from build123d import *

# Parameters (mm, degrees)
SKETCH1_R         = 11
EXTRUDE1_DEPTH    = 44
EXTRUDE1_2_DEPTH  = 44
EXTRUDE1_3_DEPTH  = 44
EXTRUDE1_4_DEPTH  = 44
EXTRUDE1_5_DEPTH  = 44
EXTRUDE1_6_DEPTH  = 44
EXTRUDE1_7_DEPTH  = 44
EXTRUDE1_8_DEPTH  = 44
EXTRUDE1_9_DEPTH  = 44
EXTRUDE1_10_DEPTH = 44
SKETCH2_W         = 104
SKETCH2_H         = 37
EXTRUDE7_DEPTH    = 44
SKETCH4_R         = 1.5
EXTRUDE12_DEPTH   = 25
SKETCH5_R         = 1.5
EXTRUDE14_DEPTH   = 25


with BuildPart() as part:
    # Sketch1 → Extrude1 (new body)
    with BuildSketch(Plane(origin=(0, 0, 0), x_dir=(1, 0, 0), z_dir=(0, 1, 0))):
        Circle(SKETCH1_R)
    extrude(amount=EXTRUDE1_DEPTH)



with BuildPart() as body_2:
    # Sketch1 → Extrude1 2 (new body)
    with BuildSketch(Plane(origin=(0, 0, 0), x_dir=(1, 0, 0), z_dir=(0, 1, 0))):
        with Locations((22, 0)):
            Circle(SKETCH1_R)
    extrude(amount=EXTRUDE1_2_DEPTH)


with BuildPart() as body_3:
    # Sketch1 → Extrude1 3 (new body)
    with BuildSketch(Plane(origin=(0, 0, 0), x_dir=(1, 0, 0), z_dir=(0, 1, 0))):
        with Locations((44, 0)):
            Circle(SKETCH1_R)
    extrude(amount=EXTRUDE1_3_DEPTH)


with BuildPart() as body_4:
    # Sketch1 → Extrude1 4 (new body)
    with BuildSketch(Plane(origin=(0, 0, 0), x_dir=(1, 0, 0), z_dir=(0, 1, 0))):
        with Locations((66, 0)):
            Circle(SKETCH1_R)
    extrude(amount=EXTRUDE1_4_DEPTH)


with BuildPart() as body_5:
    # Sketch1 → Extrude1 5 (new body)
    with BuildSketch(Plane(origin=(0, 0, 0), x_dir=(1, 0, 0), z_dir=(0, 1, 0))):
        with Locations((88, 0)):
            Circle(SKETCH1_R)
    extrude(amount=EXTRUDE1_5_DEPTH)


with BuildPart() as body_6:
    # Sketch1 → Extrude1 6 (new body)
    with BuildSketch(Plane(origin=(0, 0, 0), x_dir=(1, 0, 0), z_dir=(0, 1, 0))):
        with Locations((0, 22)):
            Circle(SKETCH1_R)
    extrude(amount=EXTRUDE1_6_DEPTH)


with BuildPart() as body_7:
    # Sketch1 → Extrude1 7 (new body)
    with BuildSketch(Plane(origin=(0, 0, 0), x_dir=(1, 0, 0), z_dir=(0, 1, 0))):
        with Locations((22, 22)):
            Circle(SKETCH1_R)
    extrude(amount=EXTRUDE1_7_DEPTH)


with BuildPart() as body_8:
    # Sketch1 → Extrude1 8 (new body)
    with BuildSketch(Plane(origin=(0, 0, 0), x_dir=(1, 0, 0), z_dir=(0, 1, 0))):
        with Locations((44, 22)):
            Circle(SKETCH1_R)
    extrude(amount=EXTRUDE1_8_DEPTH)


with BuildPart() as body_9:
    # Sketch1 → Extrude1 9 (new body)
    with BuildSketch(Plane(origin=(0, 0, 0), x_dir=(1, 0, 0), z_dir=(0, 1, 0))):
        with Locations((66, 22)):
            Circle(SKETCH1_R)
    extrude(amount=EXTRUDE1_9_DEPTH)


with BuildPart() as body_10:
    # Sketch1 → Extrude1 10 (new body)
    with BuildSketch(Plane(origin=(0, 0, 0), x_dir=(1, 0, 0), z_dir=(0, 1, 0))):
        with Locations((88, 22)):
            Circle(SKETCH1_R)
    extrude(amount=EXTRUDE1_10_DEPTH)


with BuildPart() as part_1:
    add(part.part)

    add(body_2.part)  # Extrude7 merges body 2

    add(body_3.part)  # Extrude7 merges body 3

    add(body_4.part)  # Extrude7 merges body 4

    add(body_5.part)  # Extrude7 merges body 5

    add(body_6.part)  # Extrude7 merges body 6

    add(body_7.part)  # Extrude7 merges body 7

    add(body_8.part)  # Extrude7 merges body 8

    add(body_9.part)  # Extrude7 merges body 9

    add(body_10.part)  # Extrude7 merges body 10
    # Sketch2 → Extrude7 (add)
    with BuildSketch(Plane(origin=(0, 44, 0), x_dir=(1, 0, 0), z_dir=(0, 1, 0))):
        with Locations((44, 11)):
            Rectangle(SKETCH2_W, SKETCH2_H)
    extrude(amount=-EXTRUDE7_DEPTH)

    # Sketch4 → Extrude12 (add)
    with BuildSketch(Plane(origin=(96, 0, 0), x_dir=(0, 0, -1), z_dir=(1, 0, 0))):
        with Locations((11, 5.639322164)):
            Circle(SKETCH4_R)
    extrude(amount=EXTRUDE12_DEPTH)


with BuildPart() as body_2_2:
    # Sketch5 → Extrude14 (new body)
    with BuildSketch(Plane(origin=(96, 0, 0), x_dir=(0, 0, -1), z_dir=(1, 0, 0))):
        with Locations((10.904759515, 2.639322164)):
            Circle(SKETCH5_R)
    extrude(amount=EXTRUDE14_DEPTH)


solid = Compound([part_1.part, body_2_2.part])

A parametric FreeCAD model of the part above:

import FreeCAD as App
import Part
import Sketcher

V = App.Vector

doc = App.newDocument("Part")
params = doc.addObject("Spreadsheet::Sheet", "Params")
for row, (alias, value) in enumerate([
    ("sketch1_diameter", "22 mm"),
    ("pad1_length", "44 mm"),
    ("sketch2_diameter", "22 mm"),
    ("pad2_length", "44 mm"),
    ("sketch3_diameter", "22 mm"),
    ("pad3_length", "44 mm"),
    ("sketch4_diameter", "22 mm"),
    ("pad4_length", "44 mm"),
    ("sketch5_diameter", "22 mm"),
    ("pad5_length", "44 mm"),
    ("sketch6_diameter", "22 mm"),
    ("pad6_length", "44 mm"),
    ("sketch7_diameter", "22 mm"),
    ("pad7_length", "44 mm"),
    ("sketch8_diameter", "22 mm"),
    ("pad8_length", "44 mm"),
    ("sketch9_diameter", "22 mm"),
    ("pad9_length", "44 mm"),
    ("sketch10_diameter", "22 mm"),
    ("pad10_length", "44 mm"),
    ("sketch11_width", "104 mm"),
    ("sketch11_height", "37 mm"),
    ("pad11_length", "44 mm"),
    ("sketch12_diameter", "3 mm"),
    ("pad12_length", "25 mm"),
    ("sketch13_diameter", "3 mm"),
    ("pad13_length", "25 mm"),
], start=1):
    params.set(f"A{row}", alias)
    params.set(f"B{row}", "=" + value)
    params.setAlias(f"B{row}", alias)

body = doc.addObject("PartDesign::Body", "Body")

# Sketch on XZ plane
sketch1 = body.newObject("Sketcher::SketchObject", "Sketch")
sketch1.AttachmentSupport = (doc.getObject("XZ_Plane"), [""])
sketch1.MapMode = "FlatFace"
sketch1.addGeometry(Part.Circle(V(0, 0, 0), V(0, 0, 1), 11), False)
sketch1.addConstraint(Sketcher.Constraint("Coincident", 0, 3, -1, 1))
sketch1.addConstraint(Sketcher.Constraint("Diameter", 0, 22.0))
sketch1.setExpression("Constraints[1]", "Params.sketch1_diameter")
pad1 = body.newObject("PartDesign::Pad", "Pad")
pad1.Profile = sketch1
pad1.setExpression("Length", "Params.pad1_length")
pad1.Reversed = True
body2 = doc.addObject("PartDesign::Body", "Body001")

# Sketch on XZ plane
sketch2 = body2.newObject("Sketcher::SketchObject", "Sketch001")
sketch2.AttachmentSupport = (doc.getObject("XZ_Plane001"), [""])
sketch2.MapMode = "FlatFace"
sketch2.addGeometry(Part.Circle(V(22, 0, 0), V(0, 0, 1), 11), False)
sketch2.addConstraint(Sketcher.Constraint("PointOnObject", 0, 3, -1))
sketch2.addConstraint(Sketcher.Constraint("Diameter", 0, 22.0))
sketch2.addConstraint(Sketcher.Constraint("DistanceX", -1, 1, 0, 3, 22.0))
sketch2.setExpression("Constraints[1]", "Params.sketch2_diameter")
pad2 = body2.newObject("PartDesign::Pad", "Pad001")
pad2.Profile = sketch2
pad2.setExpression("Length", "Params.pad2_length")
pad2.Reversed = True
body3 = doc.addObject("PartDesign::Body", "Body002")

# Sketch on XZ plane
sketch3 = body3.newObject("Sketcher::SketchObject", "Sketch002")
sketch3.AttachmentSupport = (doc.getObject("XZ_Plane002"), [""])
sketch3.MapMode = "FlatFace"
sketch3.addGeometry(Part.Circle(V(44, 0, 0), V(0, 0, 1), 11), False)
sketch3.addConstraint(Sketcher.Constraint("PointOnObject", 0, 3, -1))
sketch3.addConstraint(Sketcher.Constraint("Diameter", 0, 22.0))
sketch3.addConstraint(Sketcher.Constraint("DistanceX", -1, 1, 0, 3, 44.0))
sketch3.setExpression("Constraints[1]", "Params.sketch3_diameter")
pad3 = body3.newObject("PartDesign::Pad", "Pad002")
pad3.Profile = sketch3
pad3.setExpression("Length", "Params.pad3_length")
pad3.Reversed = True
body4 = doc.addObject("PartDesign::Body", "Body003")

# Sketch on XZ plane
sketch4 = body4.newObject("Sketcher::SketchObject", "Sketch003")
sketch4.AttachmentSupport = (doc.getObject("XZ_Plane003"), [""])
sketch4.MapMode = "FlatFace"
sketch4.addGeometry(Part.Circle(V(66, 0, 0), V(0, 0, 1), 11), False)
sketch4.addConstraint(Sketcher.Constraint("PointOnObject", 0, 3, -1))
sketch4.addConstraint(Sketcher.Constraint("Diameter", 0, 22.0))
sketch4.addConstraint(Sketcher.Constraint("DistanceX", -1, 1, 0, 3, 66.0))
sketch4.setExpression("Constraints[1]", "Params.sketch4_diameter")
pad4 = body4.newObject("PartDesign::Pad", "Pad003")
pad4.Profile = sketch4
pad4.setExpression("Length", "Params.pad4_length")
pad4.Reversed = True
body5 = doc.addObject("PartDesign::Body", "Body004")

# Sketch on XZ plane
sketch5 = body5.newObject("Sketcher::SketchObject", "Sketch004")
sketch5.AttachmentSupport = (doc.getObject("XZ_Plane004"), [""])
sketch5.MapMode = "FlatFace"
sketch5.addGeometry(Part.Circle(V(88, 0, 0), V(0, 0, 1), 11), False)
sketch5.addConstraint(Sketcher.Constraint("PointOnObject", 0, 3, -1))
sketch5.addConstraint(Sketcher.Constraint("Diameter", 0, 22.0))
sketch5.addConstraint(Sketcher.Constraint("DistanceX", -1, 1, 0, 3, 88.0))
sketch5.setExpression("Constraints[1]", "Params.sketch5_diameter")
pad5 = body5.newObject("PartDesign::Pad", "Pad004")
pad5.Profile = sketch5
pad5.setExpression("Length", "Params.pad5_length")
pad5.Reversed = True
body6 = doc.addObject("PartDesign::Body", "Body005")

# Sketch on XZ plane
sketch6 = body6.newObject("Sketcher::SketchObject", "Sketch005")
sketch6.AttachmentSupport = (doc.getObject("XZ_Plane005"), [""])
sketch6.MapMode = "FlatFace"
sketch6.addGeometry(Part.Circle(V(0, -22, 0), V(0, 0, 1), 11), False)
sketch6.addConstraint(Sketcher.Constraint("PointOnObject", 0, 3, -2))
sketch6.addConstraint(Sketcher.Constraint("Diameter", 0, 22.0))
sketch6.addConstraint(Sketcher.Constraint("DistanceY", 0, 3, -1, 1, 22.0))
sketch6.setExpression("Constraints[1]", "Params.sketch6_diameter")
pad6 = body6.newObject("PartDesign::Pad", "Pad005")
pad6.Profile = sketch6
pad6.setExpression("Length", "Params.pad6_length")
pad6.Reversed = True
body7 = doc.addObject("PartDesign::Body", "Body006")

# Sketch on XZ plane
sketch7 = body7.newObject("Sketcher::SketchObject", "Sketch006")
sketch7.AttachmentSupport = (doc.getObject("XZ_Plane006"), [""])
sketch7.MapMode = "FlatFace"
sketch7.addGeometry(Part.Circle(V(22, -22, 0), V(0, 0, 1), 11), False)
sketch7.addConstraint(Sketcher.Constraint("Diameter", 0, 22.0))
sketch7.addConstraint(Sketcher.Constraint("DistanceX", -1, 1, 0, 3, 22.0))
sketch7.addConstraint(Sketcher.Constraint("DistanceY", 0, 3, -1, 1, 22.0))
sketch7.setExpression("Constraints[0]", "Params.sketch7_diameter")
pad7 = body7.newObject("PartDesign::Pad", "Pad006")
pad7.Profile = sketch7
pad7.setExpression("Length", "Params.pad7_length")
pad7.Reversed = True
body8 = doc.addObject("PartDesign::Body", "Body007")

# Sketch on XZ plane
sketch8 = body8.newObject("Sketcher::SketchObject", "Sketch007")
sketch8.AttachmentSupport = (doc.getObject("XZ_Plane007"), [""])
sketch8.MapMode = "FlatFace"
sketch8.addGeometry(Part.Circle(V(44, -22, 0), V(0, 0, 1), 11), False)
sketch8.addConstraint(Sketcher.Constraint("Diameter", 0, 22.0))
sketch8.addConstraint(Sketcher.Constraint("DistanceX", -1, 1, 0, 3, 44.0))
sketch8.addConstraint(Sketcher.Constraint("DistanceY", 0, 3, -1, 1, 22.0))
sketch8.setExpression("Constraints[0]", "Params.sketch8_diameter")
pad8 = body8.newObject("PartDesign::Pad", "Pad007")
pad8.Profile = sketch8
pad8.setExpression("Length", "Params.pad8_length")
pad8.Reversed = True
body9 = doc.addObject("PartDesign::Body", "Body008")

# Sketch on XZ plane
sketch9 = body9.newObject("Sketcher::SketchObject", "Sketch008")
sketch9.AttachmentSupport = (doc.getObject("XZ_Plane008"), [""])
sketch9.MapMode = "FlatFace"
sketch9.addGeometry(Part.Circle(V(66, -22, 0), V(0, 0, 1), 11), False)
sketch9.addConstraint(Sketcher.Constraint("Diameter", 0, 22.0))
sketch9.addConstraint(Sketcher.Constraint("DistanceX", -1, 1, 0, 3, 66.0))
sketch9.addConstraint(Sketcher.Constraint("DistanceY", 0, 3, -1, 1, 22.0))
sketch9.setExpression("Constraints[0]", "Params.sketch9_diameter")
pad9 = body9.newObject("PartDesign::Pad", "Pad008")
pad9.Profile = sketch9
pad9.setExpression("Length", "Params.pad9_length")
pad9.Reversed = True
body10 = doc.addObject("PartDesign::Body", "Body009")

# Sketch on XZ plane
sketch10 = body10.newObject("Sketcher::SketchObject", "Sketch009")
sketch10.AttachmentSupport = (doc.getObject("XZ_Plane009"), [""])
sketch10.MapMode = "FlatFace"
sketch10.addGeometry(Part.Circle(V(88, -22, 0), V(0, 0, 1), 11), False)
sketch10.addConstraint(Sketcher.Constraint("Diameter", 0, 22.0))
sketch10.addConstraint(Sketcher.Constraint("DistanceX", -1, 1, 0, 3, 88.0))
sketch10.addConstraint(Sketcher.Constraint("DistanceY", 0, 3, -1, 1, 22.0))
sketch10.setExpression("Constraints[0]", "Params.sketch10_diameter")
pad10 = body10.newObject("PartDesign::Pad", "Pad009")
pad10.Profile = sketch10
pad10.setExpression("Length", "Params.pad10_length")
pad10.Reversed = True
body.AllowCompound = True
doc.recompute()

boolean = body.newObject("PartDesign::Boolean", "Boolean")
boolean.Type = "Fuse"
boolean.addObjects([body2])
doc.recompute()

boolean2 = body.newObject("PartDesign::Boolean", "Boolean001")
boolean2.Type = "Fuse"
boolean2.addObjects([body3])
doc.recompute()

boolean3 = body.newObject("PartDesign::Boolean", "Boolean002")
boolean3.Type = "Fuse"
boolean3.addObjects([body4])
doc.recompute()

boolean4 = body.newObject("PartDesign::Boolean", "Boolean003")
boolean4.Type = "Fuse"
boolean4.addObjects([body5])
doc.recompute()

boolean5 = body.newObject("PartDesign::Boolean", "Boolean004")
boolean5.Type = "Fuse"
boolean5.addObjects([body6])
doc.recompute()

boolean6 = body.newObject("PartDesign::Boolean", "Boolean005")
boolean6.Type = "Fuse"
boolean6.addObjects([body7])
doc.recompute()

boolean7 = body.newObject("PartDesign::Boolean", "Boolean006")
boolean7.Type = "Fuse"
boolean7.addObjects([body8])
doc.recompute()

boolean8 = body.newObject("PartDesign::Boolean", "Boolean007")
boolean8.Type = "Fuse"
boolean8.addObjects([body9])
doc.recompute()

boolean9 = body.newObject("PartDesign::Boolean", "Boolean008")
boolean9.Type = "Fuse"
boolean9.addObjects([body10])

# Sketch on XZ plane
sketch11 = body.newObject("Sketcher::SketchObject", "Sketch010")
sketch11.AttachmentSupport = (doc.getObject("XZ_Plane"), [""])
sketch11.MapMode = "FlatFace"
sketch11.AttachmentOffset = App.Placement(V(0, 0, -44), App.Rotation())
sketch11.addGeometry(Part.LineSegment(V(-8, -29.5, 0), V(-8, 7.5, 0)), False)
sketch11.addGeometry(Part.LineSegment(V(-8, 7.5, 0), V(96, 7.5, 0)), False)
sketch11.addGeometry(Part.LineSegment(V(96, 7.5, 0), V(96, -29.5, 0)), False)
sketch11.addGeometry(Part.LineSegment(V(96, -29.5, 0), V(-8, -29.5, 0)), False)
sketch11.addConstraint(Sketcher.Constraint("Coincident", 0, 2, 1, 1))
sketch11.addConstraint(Sketcher.Constraint("Coincident", 1, 2, 2, 1))
sketch11.addConstraint(Sketcher.Constraint("Coincident", 2, 2, 3, 1))
sketch11.addConstraint(Sketcher.Constraint("Coincident", 3, 2, 0, 1))
sketch11.addConstraint(Sketcher.Constraint("Vertical", 0))
sketch11.addConstraint(Sketcher.Constraint("Horizontal", 1))
sketch11.addConstraint(Sketcher.Constraint("Vertical", 2))
sketch11.addConstraint(Sketcher.Constraint("Horizontal", 3))
sketch11.addConstraint(Sketcher.Constraint("DistanceX", 1, 1, 1, 2, 104.0))
sketch11.addConstraint(Sketcher.Constraint("DistanceY", 0, 1, 0, 2, 37.0))
sketch11.addConstraint(Sketcher.Constraint("DistanceX", 0, 2, -1, 1, 8.0))
sketch11.addConstraint(Sketcher.Constraint("DistanceY", -1, 1, 0, 2, 7.5))
sketch11.setExpression("Constraints[8]", "Params.sketch11_width")
sketch11.setExpression("Constraints[9]", "Params.sketch11_height")
pad11 = body.newObject("PartDesign::Pad", "Pad010")
pad11.Profile = sketch11
pad11.setExpression("Length", "Params.pad11_length")

# Sketch on YZ plane
sketch12 = body.newObject("Sketcher::SketchObject", "Sketch011")
sketch12.AttachmentSupport = (doc.getObject("YZ_Plane"), [""])
sketch12.MapMode = "FlatFace"
sketch12.AttachmentOffset = App.Placement(V(0, 0, 96), App.Rotation())
sketch12.addGeometry(Part.Circle(V(5.639322, -11, 0), V(0, 0, 1), 1.5), False)
sketch12.addConstraint(Sketcher.Constraint("Diameter", 0, 3.0))
sketch12.addConstraint(Sketcher.Constraint("DistanceY", 0, 3, -1, 1, 11.0))
sketch12.addConstraint(Sketcher.Constraint("DistanceX", -1, 1, 0, 3, 5.639322))
sketch12.setExpression("Constraints[0]", "Params.sketch12_diameter")
pad12 = body.newObject("PartDesign::Pad", "Pad011")
pad12.Profile = sketch12
pad12.setExpression("Length", "Params.pad12_length")
body11 = doc.addObject("PartDesign::Body", "Body010")

# Sketch on YZ plane
sketch13 = body11.newObject("Sketcher::SketchObject", "Sketch012")
sketch13.AttachmentSupport = (doc.getObject("YZ_Plane010"), [""])
sketch13.MapMode = "FlatFace"
sketch13.AttachmentOffset = App.Placement(V(0, 0, 96), App.Rotation())
sketch13.addGeometry(Part.Circle(V(2.639322, -10.90476, 0), V(0, 0, 1), 1.5), False)
sketch13.addConstraint(Sketcher.Constraint("Diameter", 0, 3.0))
sketch13.addConstraint(Sketcher.Constraint("DistanceY", 0, 3, -1, 1, 10.90476))
sketch13.addConstraint(Sketcher.Constraint("DistanceX", -1, 1, 0, 3, 2.639322))
sketch13.setExpression("Constraints[0]", "Params.sketch13_diameter")
pad13 = body11.newObject("PartDesign::Pad", "Pad012")
pad13.Profile = sketch13
pad13.setExpression("Length", "Params.pad13_length")

doc.recompute()
